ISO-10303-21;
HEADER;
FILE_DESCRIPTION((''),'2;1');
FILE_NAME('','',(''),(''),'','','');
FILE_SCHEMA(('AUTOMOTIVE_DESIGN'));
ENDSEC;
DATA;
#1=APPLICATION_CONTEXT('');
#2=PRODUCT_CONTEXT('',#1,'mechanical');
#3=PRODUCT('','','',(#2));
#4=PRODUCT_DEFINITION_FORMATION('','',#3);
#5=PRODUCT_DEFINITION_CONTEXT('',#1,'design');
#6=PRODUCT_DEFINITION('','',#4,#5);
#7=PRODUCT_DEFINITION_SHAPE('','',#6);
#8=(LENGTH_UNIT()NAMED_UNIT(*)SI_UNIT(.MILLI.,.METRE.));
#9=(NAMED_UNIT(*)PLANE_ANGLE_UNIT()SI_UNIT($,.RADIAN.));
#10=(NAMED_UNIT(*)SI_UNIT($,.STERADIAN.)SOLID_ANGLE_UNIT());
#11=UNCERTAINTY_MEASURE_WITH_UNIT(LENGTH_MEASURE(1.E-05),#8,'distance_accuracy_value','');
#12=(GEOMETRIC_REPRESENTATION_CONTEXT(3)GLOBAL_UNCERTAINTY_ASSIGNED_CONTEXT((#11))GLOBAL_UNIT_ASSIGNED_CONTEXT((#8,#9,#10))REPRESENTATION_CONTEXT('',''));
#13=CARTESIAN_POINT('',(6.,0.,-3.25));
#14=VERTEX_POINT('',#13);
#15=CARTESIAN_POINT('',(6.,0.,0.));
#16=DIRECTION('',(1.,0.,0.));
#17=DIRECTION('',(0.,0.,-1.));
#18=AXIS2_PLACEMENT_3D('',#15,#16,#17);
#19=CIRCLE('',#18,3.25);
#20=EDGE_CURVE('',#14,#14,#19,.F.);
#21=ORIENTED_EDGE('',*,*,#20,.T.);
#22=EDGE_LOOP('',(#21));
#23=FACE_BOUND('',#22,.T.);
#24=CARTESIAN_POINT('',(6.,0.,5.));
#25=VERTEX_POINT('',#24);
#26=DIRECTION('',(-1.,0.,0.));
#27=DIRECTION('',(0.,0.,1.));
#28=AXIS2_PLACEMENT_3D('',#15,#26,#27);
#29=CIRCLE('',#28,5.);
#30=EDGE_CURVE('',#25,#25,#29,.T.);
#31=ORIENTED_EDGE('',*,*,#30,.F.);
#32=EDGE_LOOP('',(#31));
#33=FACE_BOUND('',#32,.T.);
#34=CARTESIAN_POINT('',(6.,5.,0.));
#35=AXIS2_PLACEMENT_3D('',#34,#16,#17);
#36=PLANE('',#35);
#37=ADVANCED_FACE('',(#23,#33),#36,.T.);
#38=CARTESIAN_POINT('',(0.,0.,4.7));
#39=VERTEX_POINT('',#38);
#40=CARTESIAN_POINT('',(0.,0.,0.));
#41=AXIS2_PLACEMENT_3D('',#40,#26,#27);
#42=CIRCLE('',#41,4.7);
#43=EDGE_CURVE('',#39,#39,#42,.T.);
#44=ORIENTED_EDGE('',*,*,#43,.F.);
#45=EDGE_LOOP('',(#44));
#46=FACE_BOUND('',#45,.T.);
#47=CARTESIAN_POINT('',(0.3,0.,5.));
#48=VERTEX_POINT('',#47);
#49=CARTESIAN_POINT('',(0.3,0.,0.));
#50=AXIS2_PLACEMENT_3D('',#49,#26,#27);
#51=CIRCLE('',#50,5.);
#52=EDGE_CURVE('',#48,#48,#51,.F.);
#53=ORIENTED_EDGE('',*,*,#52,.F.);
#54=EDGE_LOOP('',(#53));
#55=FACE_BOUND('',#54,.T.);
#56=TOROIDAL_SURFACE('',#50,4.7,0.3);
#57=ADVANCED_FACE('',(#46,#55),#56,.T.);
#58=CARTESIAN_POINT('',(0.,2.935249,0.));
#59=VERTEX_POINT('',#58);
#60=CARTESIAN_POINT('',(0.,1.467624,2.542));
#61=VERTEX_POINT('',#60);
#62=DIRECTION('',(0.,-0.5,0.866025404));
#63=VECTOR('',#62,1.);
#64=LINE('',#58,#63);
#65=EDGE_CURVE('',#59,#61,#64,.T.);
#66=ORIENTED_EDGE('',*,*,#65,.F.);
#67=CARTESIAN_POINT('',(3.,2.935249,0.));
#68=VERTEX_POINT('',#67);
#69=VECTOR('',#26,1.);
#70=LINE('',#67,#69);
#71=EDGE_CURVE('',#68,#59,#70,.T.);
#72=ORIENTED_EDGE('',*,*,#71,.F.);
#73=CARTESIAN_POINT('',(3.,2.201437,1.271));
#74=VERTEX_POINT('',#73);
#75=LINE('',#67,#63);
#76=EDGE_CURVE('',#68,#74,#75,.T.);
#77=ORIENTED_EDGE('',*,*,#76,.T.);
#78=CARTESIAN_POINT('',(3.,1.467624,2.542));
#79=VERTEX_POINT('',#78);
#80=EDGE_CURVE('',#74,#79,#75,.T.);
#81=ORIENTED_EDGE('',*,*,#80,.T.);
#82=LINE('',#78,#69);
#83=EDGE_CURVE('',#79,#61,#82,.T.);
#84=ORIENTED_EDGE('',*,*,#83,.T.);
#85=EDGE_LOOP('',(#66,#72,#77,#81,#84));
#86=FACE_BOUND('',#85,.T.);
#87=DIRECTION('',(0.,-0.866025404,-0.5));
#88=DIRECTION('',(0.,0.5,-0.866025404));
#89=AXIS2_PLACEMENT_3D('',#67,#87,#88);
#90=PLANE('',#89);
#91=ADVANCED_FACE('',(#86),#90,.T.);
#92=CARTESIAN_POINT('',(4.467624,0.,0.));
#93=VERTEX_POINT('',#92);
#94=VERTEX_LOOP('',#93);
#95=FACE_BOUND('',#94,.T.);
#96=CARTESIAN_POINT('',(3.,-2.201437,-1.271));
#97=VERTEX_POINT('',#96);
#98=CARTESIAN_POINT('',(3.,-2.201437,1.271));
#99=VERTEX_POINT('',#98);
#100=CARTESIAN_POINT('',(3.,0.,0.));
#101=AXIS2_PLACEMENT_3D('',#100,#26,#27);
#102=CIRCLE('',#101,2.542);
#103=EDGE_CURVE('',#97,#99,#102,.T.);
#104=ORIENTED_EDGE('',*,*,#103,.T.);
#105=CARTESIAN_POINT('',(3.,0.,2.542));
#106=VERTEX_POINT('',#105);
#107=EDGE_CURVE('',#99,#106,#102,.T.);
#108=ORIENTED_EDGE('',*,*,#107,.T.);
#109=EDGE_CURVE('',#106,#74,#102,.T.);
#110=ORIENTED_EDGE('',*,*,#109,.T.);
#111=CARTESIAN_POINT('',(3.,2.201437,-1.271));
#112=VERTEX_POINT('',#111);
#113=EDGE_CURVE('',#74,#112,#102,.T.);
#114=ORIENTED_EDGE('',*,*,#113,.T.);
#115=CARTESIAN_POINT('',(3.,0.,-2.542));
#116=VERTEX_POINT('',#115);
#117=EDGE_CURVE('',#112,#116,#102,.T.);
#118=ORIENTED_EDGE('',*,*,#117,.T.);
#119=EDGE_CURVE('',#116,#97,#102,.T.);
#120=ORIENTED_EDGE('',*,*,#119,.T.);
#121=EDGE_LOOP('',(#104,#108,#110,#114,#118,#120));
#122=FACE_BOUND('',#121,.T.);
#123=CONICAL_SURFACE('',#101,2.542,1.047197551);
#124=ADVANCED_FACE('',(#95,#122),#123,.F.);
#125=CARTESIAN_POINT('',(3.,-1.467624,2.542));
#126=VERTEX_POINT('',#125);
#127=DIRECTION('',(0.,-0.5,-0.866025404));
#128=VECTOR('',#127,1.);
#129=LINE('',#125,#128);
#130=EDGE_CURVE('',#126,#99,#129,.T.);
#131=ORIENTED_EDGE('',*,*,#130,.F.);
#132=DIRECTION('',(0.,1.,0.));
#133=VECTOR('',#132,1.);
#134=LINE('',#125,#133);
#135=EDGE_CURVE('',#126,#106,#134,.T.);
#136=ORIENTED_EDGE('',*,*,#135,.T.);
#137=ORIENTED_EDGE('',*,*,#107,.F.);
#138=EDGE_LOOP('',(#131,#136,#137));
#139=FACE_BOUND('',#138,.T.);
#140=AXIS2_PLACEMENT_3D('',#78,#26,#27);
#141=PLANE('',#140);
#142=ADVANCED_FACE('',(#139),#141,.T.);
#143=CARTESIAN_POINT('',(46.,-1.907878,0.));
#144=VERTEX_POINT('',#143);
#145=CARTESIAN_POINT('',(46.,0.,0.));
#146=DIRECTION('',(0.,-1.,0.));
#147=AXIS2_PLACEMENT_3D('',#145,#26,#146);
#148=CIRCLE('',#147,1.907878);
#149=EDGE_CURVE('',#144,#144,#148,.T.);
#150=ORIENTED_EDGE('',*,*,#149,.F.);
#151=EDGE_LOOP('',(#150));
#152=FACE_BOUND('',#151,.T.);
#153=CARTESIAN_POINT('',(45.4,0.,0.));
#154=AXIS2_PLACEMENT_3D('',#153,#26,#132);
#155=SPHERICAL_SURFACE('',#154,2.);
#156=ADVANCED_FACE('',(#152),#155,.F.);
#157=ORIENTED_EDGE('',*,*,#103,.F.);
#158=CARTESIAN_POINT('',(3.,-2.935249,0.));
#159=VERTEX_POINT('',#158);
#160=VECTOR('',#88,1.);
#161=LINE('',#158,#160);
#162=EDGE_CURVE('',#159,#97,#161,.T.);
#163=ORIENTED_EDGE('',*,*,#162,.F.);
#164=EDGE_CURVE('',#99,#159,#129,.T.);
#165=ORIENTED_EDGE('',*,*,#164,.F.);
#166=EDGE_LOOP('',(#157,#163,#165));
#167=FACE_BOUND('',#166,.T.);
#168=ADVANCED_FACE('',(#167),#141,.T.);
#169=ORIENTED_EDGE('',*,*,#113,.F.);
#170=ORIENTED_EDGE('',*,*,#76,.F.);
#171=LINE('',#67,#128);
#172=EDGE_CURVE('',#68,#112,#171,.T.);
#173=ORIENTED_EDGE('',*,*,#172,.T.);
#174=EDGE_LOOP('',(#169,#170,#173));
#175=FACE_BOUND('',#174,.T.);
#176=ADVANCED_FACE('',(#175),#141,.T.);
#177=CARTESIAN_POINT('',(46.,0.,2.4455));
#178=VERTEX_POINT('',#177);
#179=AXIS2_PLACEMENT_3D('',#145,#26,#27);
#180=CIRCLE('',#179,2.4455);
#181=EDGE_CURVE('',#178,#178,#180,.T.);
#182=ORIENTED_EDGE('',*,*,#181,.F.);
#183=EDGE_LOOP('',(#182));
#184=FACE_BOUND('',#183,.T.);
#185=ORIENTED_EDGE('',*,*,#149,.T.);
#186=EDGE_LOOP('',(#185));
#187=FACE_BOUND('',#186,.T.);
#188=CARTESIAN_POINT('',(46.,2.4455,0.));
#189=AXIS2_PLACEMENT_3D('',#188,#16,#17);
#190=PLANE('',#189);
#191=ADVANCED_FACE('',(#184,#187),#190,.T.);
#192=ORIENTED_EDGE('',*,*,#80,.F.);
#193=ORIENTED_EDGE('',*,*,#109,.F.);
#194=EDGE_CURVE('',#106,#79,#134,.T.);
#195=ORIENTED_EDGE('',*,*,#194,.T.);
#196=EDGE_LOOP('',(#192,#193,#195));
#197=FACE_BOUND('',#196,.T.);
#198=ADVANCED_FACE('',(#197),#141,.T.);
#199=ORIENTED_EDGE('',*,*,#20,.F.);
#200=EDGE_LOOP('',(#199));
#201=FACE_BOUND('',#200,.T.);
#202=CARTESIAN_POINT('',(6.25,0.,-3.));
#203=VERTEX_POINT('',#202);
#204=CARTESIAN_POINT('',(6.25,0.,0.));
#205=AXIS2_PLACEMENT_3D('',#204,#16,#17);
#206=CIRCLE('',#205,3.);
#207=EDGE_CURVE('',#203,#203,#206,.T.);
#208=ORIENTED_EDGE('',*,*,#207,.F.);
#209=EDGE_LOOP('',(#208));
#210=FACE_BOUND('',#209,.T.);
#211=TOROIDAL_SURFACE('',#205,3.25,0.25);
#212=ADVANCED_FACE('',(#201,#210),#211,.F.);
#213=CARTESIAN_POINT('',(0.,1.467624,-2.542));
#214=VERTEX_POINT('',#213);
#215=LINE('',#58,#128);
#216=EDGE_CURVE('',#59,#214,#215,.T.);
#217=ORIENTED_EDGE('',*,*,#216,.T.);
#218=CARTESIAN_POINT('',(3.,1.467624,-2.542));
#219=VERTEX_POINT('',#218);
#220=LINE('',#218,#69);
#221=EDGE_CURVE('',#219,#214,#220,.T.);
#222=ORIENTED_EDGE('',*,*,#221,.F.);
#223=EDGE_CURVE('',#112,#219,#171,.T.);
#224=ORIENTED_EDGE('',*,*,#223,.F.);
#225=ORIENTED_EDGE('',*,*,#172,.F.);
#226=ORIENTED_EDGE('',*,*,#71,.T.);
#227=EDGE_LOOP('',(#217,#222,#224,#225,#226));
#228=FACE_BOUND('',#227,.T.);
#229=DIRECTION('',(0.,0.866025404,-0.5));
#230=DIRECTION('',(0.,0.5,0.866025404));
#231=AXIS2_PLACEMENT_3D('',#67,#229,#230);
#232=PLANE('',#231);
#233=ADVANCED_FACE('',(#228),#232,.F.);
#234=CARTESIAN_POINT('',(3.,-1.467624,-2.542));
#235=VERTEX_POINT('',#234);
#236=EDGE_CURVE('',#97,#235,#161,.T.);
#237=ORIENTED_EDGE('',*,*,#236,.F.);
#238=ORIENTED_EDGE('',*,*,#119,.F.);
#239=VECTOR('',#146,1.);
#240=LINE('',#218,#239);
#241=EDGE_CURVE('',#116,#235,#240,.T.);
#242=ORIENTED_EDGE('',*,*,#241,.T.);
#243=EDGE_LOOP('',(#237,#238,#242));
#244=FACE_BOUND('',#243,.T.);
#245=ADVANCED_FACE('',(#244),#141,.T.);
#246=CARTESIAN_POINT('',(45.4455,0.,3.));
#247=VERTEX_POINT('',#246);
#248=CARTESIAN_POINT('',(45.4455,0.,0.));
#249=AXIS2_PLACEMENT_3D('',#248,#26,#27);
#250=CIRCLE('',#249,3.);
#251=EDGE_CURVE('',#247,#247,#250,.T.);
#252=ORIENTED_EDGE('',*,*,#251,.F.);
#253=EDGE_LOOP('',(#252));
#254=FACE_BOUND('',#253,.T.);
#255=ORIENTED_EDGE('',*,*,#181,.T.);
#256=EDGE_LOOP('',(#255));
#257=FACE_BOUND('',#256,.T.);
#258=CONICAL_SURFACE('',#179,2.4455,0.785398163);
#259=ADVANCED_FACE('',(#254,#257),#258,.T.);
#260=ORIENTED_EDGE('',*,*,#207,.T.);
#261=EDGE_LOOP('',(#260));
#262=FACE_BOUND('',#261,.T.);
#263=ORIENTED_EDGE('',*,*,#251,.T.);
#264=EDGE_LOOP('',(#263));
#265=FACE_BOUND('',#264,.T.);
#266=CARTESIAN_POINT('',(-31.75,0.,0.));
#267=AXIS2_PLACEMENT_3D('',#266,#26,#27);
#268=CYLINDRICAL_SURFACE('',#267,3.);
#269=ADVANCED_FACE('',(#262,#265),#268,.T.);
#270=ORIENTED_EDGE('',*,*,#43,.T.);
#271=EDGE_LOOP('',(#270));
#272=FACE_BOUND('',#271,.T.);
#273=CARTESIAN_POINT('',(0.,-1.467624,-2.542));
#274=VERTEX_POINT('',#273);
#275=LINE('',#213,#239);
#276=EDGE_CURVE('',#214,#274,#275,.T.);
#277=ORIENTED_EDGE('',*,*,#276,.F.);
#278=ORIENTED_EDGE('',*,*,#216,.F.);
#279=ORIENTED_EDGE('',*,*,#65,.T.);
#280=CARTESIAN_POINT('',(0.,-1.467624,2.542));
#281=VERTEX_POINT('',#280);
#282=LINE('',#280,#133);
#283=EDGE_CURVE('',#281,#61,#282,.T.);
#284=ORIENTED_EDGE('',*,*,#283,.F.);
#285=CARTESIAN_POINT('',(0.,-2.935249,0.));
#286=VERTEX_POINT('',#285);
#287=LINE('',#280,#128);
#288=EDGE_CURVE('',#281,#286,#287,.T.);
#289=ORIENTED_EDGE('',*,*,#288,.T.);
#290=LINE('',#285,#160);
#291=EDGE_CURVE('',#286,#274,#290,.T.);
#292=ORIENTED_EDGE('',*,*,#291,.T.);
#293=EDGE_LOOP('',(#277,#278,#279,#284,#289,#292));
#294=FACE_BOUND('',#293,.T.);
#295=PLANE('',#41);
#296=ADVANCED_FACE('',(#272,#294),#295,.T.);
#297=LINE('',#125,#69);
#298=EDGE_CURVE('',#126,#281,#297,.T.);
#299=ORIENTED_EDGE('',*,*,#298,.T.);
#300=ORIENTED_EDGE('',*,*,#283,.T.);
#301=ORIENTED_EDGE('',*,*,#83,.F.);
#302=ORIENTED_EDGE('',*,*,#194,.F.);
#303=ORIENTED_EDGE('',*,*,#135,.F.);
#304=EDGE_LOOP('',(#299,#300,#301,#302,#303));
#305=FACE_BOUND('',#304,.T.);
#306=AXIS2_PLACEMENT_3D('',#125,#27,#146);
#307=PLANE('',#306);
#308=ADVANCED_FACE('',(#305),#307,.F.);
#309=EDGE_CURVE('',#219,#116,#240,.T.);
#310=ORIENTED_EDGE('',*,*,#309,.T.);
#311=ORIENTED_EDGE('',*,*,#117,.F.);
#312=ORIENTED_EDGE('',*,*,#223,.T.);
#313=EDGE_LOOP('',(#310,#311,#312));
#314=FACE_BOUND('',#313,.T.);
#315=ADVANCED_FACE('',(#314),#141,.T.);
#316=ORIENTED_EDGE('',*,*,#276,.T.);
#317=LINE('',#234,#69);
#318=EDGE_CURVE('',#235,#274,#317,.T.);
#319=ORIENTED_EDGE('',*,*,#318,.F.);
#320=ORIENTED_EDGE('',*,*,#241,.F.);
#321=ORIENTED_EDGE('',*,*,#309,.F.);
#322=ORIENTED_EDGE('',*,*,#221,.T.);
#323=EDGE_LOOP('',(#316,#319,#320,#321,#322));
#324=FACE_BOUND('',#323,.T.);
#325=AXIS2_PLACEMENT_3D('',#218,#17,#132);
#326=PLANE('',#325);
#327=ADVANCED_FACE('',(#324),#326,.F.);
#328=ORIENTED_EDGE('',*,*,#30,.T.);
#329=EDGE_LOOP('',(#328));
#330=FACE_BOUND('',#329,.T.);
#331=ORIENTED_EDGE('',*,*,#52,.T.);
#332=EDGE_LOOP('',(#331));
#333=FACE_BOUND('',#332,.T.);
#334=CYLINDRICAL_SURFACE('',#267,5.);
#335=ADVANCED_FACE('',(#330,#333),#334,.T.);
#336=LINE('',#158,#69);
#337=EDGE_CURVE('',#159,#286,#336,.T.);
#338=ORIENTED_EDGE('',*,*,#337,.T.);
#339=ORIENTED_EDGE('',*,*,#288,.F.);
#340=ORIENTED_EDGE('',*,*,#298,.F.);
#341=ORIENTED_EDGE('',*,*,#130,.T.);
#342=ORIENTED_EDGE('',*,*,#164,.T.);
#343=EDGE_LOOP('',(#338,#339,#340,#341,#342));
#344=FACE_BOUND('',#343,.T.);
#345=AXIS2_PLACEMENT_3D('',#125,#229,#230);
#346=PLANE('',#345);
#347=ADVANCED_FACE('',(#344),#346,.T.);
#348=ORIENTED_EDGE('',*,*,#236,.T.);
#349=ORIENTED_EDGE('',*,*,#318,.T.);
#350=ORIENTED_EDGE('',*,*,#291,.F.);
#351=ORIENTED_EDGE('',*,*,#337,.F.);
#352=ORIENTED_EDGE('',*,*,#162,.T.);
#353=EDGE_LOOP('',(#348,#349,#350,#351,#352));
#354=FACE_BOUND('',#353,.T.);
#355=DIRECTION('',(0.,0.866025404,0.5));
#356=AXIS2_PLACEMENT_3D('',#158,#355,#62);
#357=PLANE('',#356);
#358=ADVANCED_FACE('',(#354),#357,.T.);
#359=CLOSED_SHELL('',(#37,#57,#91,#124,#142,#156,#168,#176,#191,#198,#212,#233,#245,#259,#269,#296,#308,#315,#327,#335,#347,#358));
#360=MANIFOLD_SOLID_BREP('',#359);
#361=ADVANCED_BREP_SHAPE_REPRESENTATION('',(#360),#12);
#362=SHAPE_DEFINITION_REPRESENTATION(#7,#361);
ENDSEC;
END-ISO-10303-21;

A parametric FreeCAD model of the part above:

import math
import FreeCAD as App
import Part
import Sketcher

V = App.Vector
Q = App.Units.Quantity


def edges_at(feature, points):
    """Names of the edges that pass closest to the given points."""
    edges = feature.Shape.Edges
    near = lambda p: min(range(len(edges)), key=lambda i: edges[i].distToShape(Part.Vertex(*p))[0])
    return sorted({f"Edge{near(p) + 1}" for p in points})

doc = App.newDocument("Part")
body = doc.addObject("PartDesign::Body", "Body")

# Sketch on XY plane
sketch1 = body.newObject("Sketcher::SketchObject", "Sketch")
sketch1.AttachmentSupport = (doc.getObject("XY_Plane"), [""])
sketch1.MapMode = "FlatFace"
sketch1.addGeometry(Part.LineSegment(V(0, 5, 0), V(0, 0, 0)), False)
sketch1.addGeometry(Part.LineSegment(V(0, 0, 0), V(46, 0, 0)), False)
sketch1.addGeometry(Part.LineSegment(V(46, 0, 0), V(46, 2.4455, 0)), False)
sketch1.addGeometry(Part.LineSegment(V(46, 2.4455, 0), V(45.4455, 3, 0)), False)
sketch1.addGeometry(Part.LineSegment(V(45.4455, 3, 0), V(6, 3, 0)), False)
sketch1.addGeometry(Part.LineSegment(V(6, 3, 0), V(6, 5, 0)), False)
sketch1.addGeometry(Part.LineSegment(V(6, 5, 0), V(0, 5, 0)), False)
sketch1.addConstraint(Sketcher.Constraint("Coincident", 0, 2, 1, 1))
sketch1.addConstraint(Sketcher.Constraint("Coincident", 1, 2, 2, 1))
sketch1.addConstraint(Sketcher.Constraint("Coincident", 2, 2, 3, 1))
sketch1.addConstraint(Sketcher.Constraint("Coincident", 3, 2, 4, 1))
sketch1.addConstraint(Sketcher.Constraint("Coincident", 4, 2, 5, 1))
sketch1.addConstraint(Sketcher.Constraint("Coincident", 5, 2, 6, 1))
sketch1.addConstraint(Sketcher.Constraint("Coincident", 6, 2, 0, 1))
sketch1.addConstraint(Sketcher.Constraint("Vertical", 0))
sketch1.addConstraint(Sketcher.Constraint("Horizontal", 1))
sketch1.addConstraint(Sketcher.Constraint("Vertical", 2))
sketch1.addConstraint(Sketcher.Constraint("Horizontal", 4))
sketch1.addConstraint(Sketcher.Constraint("Vertical", 5))
sketch1.addConstraint(Sketcher.Constraint("Horizontal", 6))
sketch1.addConstraint(Sketcher.Constraint("Coincident", 0, 2, -1, 1))
sketch1.addConstraint(Sketcher.Constraint("DistanceX", 1, 1, 1, 2, Q("46 mm")))
sketch1.addConstraint(Sketcher.Constraint("DistanceX", 6, 2, 6, 1, Q("6 mm")))
sketch1.addConstraint(Sketcher.Constraint("DistanceY", 0, 2, 0, 1, Q("5 mm")))
sketch1.addConstraint(Sketcher.Constraint("DistanceY", 5, 1, 5, 2, Q("2 mm")))
sketch1.addConstraint(Sketcher.Constraint("Angle", 3, Q("135 deg")))
sketch1.addConstraint(Sketcher.Constraint("DistanceX", 4, 2, 4, 1, Q("39.4455 mm")))
revolution = body.newObject("PartDesign::Revolution", "Revolution")
revolution.Profile = sketch1
revolution.ReferenceAxis = (sketch1, ["H_Axis"])
revolution.Angle = 360
doc.recompute()

fillet = body.newObject("PartDesign::Fillet", "Fillet")
fillet.Base = (revolution, edges_at(revolution, [(6, 0, -3)]))
fillet.Radius = 0.25
doc.recompute()

fillet2 = body.newObject("PartDesign::Fillet", "Fillet001")
fillet2.Base = (fillet, edges_at(fillet, [(0, 0, -5)]))
fillet2.Radius = 0.3

# Sketch on XY plane
sketch2 = body.newObject("Sketcher::SketchObject", "Sketch001")
sketch2.AttachmentSupport = (doc.getObject("XY_Plane"), [""])
sketch2.MapMode = "FlatFace"
sketch2.addGeometry(Part.LineSegment(V(3, 2.542, 0), V(0, 2.542, 0)), False)
sketch2.addGeometry(Part.LineSegment(V(0, 2.542, 0), V(0, 0, 0)), False)
sketch2.addGeometry(Part.LineSegment(V(0, 0, 0), V(4.467624, 0, 0)), False)
sketch2.addGeometry(Part.LineSegment(V(4.467624, 0, 0), V(3, 2.542, 0)), False)
sketch2.addConstraint(Sketcher.Constraint("Coincident", 0, 2, 1, 1))
sketch2.addConstraint(Sketcher.Constraint("Coincident", 1, 2, 2, 1))
sketch2.addConstraint(Sketcher.Constraint("Coincident", 2, 2, 3, 1))
sketch2.addConstraint(Sketcher.Constraint("Coincident", 3, 2, 0, 1))
sketch2.addConstraint(Sketcher.Constraint("Horizontal", 0))
sketch2.addConstraint(Sketcher.Constraint("Vertical", 1))
sketch2.addConstraint(Sketcher.Constraint("Horizontal", 2))
sketch2.addConstraint(Sketcher.Constraint("Coincident", 1, 2, -1, 1))
sketch2.addConstraint(Sketcher.Constraint("DistanceX", 0, 2, 0, 1, Q("3 mm")))
sketch2.addConstraint(Sketcher.Constraint("Angle", 3, Q("120 deg")))
sketch2.addConstraint(Sketcher.Constraint("DistanceY", 1, 2, 1, 1, Q("2.542 mm")))
groove = body.newObject("PartDesign::Groove", "Groove")
groove.Profile = sketch2
groove.ReferenceAxis = (sketch2, ["H_Axis"])
groove.Angle = 360

# Sketch on YZ plane
sketch3 = body.newObject("Sketcher::SketchObject", "Sketch002")
sketch3.AttachmentSupport = (doc.getObject("YZ_Plane"), [""])
sketch3.MapMode = "FlatFace"
sketch3.addGeometry(Part.LineSegment(V(2.935249, 0, 0), V(1.467624, -2.542, 0)), False)
sketch3.addGeometry(Part.LineSegment(V(1.467624, -2.542, 0), V(-1.467624, -2.542, 0)), False)
sketch3.addGeometry(Part.LineSegment(V(-1.467624, -2.542, 0), V(-2.935249, 0, 0)), False)
sketch3.addGeometry(Part.LineSegment(V(-2.935249, 0, 0), V(-1.467624, 2.542, 0)), False)
sketch3.addGeometry(Part.LineSegment(V(-1.467624, 2.542, 0), V(1.467624, 2.542, 0)), False)
sketch3.addGeometry(Part.LineSegment(V(1.467624, 2.542, 0), V(2.935249, 0, 0)), False)
sketch3.addConstraint(Sketcher.Constraint("Coincident", 0, 2, 1, 1))
sketch3.addConstraint(Sketcher.Constraint("Coincident", 1, 2, 2, 1))
sketch3.addConstraint(Sketcher.Constraint("Coincident", 2, 2, 3, 1))
sketch3.addConstraint(Sketcher.Constraint("Coincident", 3, 2, 4, 1))
sketch3.addConstraint(Sketcher.Constraint("Coincident", 4, 2, 5, 1))
sketch3.addConstraint(Sketcher.Constraint("Coincident", 5, 2, 0, 1))
sketch3.addConstraint(Sketcher.Constraint("Horizontal", 1))
sketch3.addConstraint(Sketcher.Constraint("Horizontal", 4))
sketch3.addConstraint(Sketcher.Constraint("Symmetric", 0, 2, 3, 2, -1, 1))
sketch3.addConstraint(Sketcher.Constraint("Symmetric", 2, 2, 5, 2, -1, 1))
sketch3.addConstraint(Sketcher.Constraint("PointOnObject", 2, 2, -1))
sketch3.addConstraint(Sketcher.Constraint("Parallel", 2, 5))
sketch3.addConstraint(Sketcher.Constraint("Vertical", 1, 2, 3, 2))
sketch3.addConstraint(Sketcher.Constraint("Angle", 0, Q("-120 deg")))
sketch3.addConstraint(Sketcher.Constraint("DistanceY", 0, 2, -1, 1, Q("2.542 mm")))
sketch3.addConstraint(Sketcher.Constraint("DistanceX", 1, 2, 1, 1, Q("2.935249 mm")))
pocket1 = body.newObject("PartDesign::Pocket", "Pocket")
pocket1.Profile = sketch3
pocket1.Length = 3
pocket1.Reversed = True

# Sketch on XY plane
sketch4 = body.newObject("Sketcher::SketchObject", "Sketch003")
sketch4.AttachmentSupport = (doc.getObject("XY_Plane"), [""])
sketch4.MapMode = "FlatFace"
sketch4.addGeometry(Part.LineSegment(V(46, 0, 0), V(43.4, 0, 0)), False)
sketch4.addGeometry(Part.ArcOfCircle(Part.Circle(V(45.4, 0, 0), V(0, 0, 1), 2), math.radians(180), math.radians(287.457603)), False)
sketch4.addGeometry(Part.LineSegment(V(46, -1.907878, 0), V(46, 0, 0)), False)
sketch4.addConstraint(Sketcher.Constraint("Coincident", 0, 2, 1, 1))
sketch4.addConstraint(Sketcher.Constraint("Coincident", 1, 2, 2, 1))
sketch4.addConstraint(Sketcher.Constraint("Coincident", 2, 2, 0, 1))
sketch4.addConstraint(Sketcher.Constraint("Horizontal", 0))
sketch4.addConstraint(Sketcher.Constraint("Vertical", 2))
sketch4.addConstraint(Sketcher.Constraint("PointOnObject", 1, 3, -1))
sketch4.addConstraint(Sketcher.Constraint("PointOnObject", 0, 2, -1))
sketch4.addConstraint(Sketcher.Constraint("Radius", 1, Q("2 mm")))
sketch4.addConstraint(Sketcher.Constraint("DistanceX", 0, 2, 0, 1, Q("2.6 mm")))
sketch4.addConstraint(Sketcher.Constraint("DistanceX", -1, 1, 1, 2, Q("46 mm")))
groove2 = body.newObject("PartDesign::Groove", "Groove001")
groove2.Profile = sketch4
groove2.ReferenceAxis = (sketch4, ["H_Axis"])
groove2.Angle = 360

doc.recompute()
